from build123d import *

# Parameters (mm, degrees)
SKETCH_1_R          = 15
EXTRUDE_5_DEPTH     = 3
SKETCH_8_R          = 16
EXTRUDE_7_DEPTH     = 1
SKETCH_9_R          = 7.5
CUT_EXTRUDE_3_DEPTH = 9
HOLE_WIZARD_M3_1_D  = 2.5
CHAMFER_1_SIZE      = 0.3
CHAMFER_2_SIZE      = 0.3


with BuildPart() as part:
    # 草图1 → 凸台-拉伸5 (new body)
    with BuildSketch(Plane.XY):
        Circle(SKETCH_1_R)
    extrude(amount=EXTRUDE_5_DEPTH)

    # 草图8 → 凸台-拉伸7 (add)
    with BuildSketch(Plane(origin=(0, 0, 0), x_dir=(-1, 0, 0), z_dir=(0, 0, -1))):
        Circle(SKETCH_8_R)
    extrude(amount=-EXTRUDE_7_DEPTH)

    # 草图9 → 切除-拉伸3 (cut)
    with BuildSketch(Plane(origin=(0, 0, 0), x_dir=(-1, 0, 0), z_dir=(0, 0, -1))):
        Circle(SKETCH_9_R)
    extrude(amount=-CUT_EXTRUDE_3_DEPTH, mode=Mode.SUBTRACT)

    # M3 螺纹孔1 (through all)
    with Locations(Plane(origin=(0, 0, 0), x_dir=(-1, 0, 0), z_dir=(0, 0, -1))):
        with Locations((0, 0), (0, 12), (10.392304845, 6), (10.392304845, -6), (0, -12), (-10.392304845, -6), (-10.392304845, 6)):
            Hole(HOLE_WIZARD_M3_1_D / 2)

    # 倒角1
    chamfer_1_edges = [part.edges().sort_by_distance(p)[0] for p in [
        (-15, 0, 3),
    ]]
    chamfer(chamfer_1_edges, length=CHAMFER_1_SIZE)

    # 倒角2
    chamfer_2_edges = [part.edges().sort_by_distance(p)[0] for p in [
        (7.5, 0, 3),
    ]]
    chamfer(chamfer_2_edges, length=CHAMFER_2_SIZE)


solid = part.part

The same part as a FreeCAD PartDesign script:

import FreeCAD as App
import Part
import Sketcher

V = App.Vector


def edges_at(feature, points):
    """Names of the edges that pass closest to the given points."""
    edges = feature.Shape.Edges
    near = lambda p: min(range(len(edges)), key=lambda i: edges[i].distToShape(Part.Vertex(*p))[0])
    return sorted({f"Edge{near(p) + 1}" for p in points})

doc = App.newDocument("Part")
body = doc.addObject("PartDesign::Body", "Body")

# Sketch on XY plane
sketch1 = doc.addObject("Sketcher::SketchObject", "Sketch")
body.addObject(sketch1)
sketch1.AttachmentSupport = (doc.XY_Plane, [""])
sketch1.MapMode = "FlatFace"
sketch1.addGeometry(Part.Circle(V(0, 0, 0), V(0, 0, 1), 15), False)
sketch1.addConstraint([
    Sketcher.Constraint("Coincident", 0, 3, -1, 1),
    Sketcher.Constraint("Diameter", 0, 30.0),
])
pad1 = doc.addObject("PartDesign::Pad", "Pad")
body.addObject(pad1)
pad1.Profile = sketch1
pad1.Length = 3

# Sketch on XY plane
sketch2 = doc.addObject("Sketcher::SketchObject", "Sketch001")
body.addObject(sketch2)
sketch2.AttachmentSupport = (doc.XY_Plane, [""])
sketch2.MapMode = "FlatFace"
sketch2.addGeometry(Part.Circle(V(0, 0, 0), V(0, 0, 1), 16), False)
sketch2.addConstraint([
    Sketcher.Constraint("Coincident", 0, 3, -1, 1),
    Sketcher.Constraint("Diameter", 0, 32.0),
])
pad2 = doc.addObject("PartDesign::Pad", "Pad001")
body.addObject(pad2)
pad2.Profile = sketch2
pad2.Length = 1

# Sketch on XY plane
sketch3 = doc.addObject("Sketcher::SketchObject", "Sketch002")
body.addObject(sketch3)
sketch3.AttachmentSupport = (doc.XY_Plane, [""])
sketch3.MapMode = "FlatFace"
sketch3.addGeometry(Part.Circle(V(0, 0, 0), V(0, 0, 1), 7.5), False)
sketch3.addConstraint([
    Sketcher.Constraint("Coincident", 0, 3, -1, 1),
    Sketcher.Constraint("Diameter", 0, 15.0),
])
pocket1 = doc.addObject("PartDesign::Pocket", "Pocket")
body.addObject(pocket1)
pocket1.Profile = sketch3
pocket1.Length = 9
pocket1.Reversed = True

# Sketch on XY plane
sketch4 = doc.addObject("Sketcher::SketchObject", "Sketch003")
body.addObject(sketch4)
sketch4.AttachmentSupport = (doc.XY_Plane, [""])
sketch4.MapMode = "FlatFace"
sketch4.addGeometry([
    Part.Circle(V(0, 0, 0), V(0, 0, 1), 1.25),  # 0
    Part.Circle(V(0, 12, 0), V(0, 0, 1), 1.25),  # 1
    Part.Circle(V(-10.392305, 6, 0), V(0, 0, 1), 1.25),  # 2
    Part.Circle(V(-10.392305, -6, 0), V(0, 0, 1), 1.25),  # 3
    Part.Circle(V(0, -12, 0), V(0, 0, 1), 1.25),  # 4
    Part.Circle(V(10.392305, -6, 0), V(0, 0, 1), 1.25),  # 5
    Part.Circle(V(10.392305, 6, 0), V(0, 0, 1), 1.25),  # 6
], False)
sketch4.addConstraint([
    Sketcher.Constraint("Coincident", 0, 3, -1, 1),
    Sketcher.Constraint("Equal", 0, 1),
    Sketcher.Constraint("Equal", 1, 2),
    Sketcher.Constraint("Equal", 2, 3),
    Sketcher.Constraint("Equal", 3, 4),
    Sketcher.Constraint("Equal", 4, 5),
    Sketcher.Constraint("Equal", 5, 6),
    Sketcher.Constraint("Symmetric", 1, 3, 4, 3, -1, 1),
    Sketcher.Constraint("Symmetric", 2, 3, 5, 3, -1, 1),
    Sketcher.Constraint("Symmetric", 3, 3, 6, 3, -1, 1),
    Sketcher.Constraint("Symmetric", 3, 3, 5, 3, -2),
    Sketcher.Constraint("PointOnObject", 1, 3, -2),
    Sketcher.Constraint("Diameter", 0, 2.5),
    Sketcher.Constraint("DistanceY", -1, 1, 1, 3, 12.0),
    Sketcher.Constraint("DistanceY", -1, 1, 2, 3, 6.0),
    Sketcher.Constraint("DistanceX", 3, 3, 5, 3, 20.78461),
])
doc.recompute()
hole = doc.addObject("PartDesign::Hole", "Hole")
body.addObject(hole)
hole.Profile = sketch4
hole.ThreadType = "None"
hole.Diameter = 2.5
hole.DepthType = "ThroughAll"
hole.Reversed = True
doc.recompute()

chamfer = doc.addObject("PartDesign::Chamfer", "Chamfer")
body.addObject(chamfer)
chamfer.Base = (hole, edges_at(hole, [(-15, 0, 3)]))
chamfer.Size = 0.3
doc.recompute()

chamfer2 = doc.addObject("PartDesign::Chamfer", "Chamfer001")
body.addObject(chamfer2)
chamfer2.Base = (chamfer, edges_at(chamfer, [(7.5, 0, 3)]))
chamfer2.Size = 0.3

doc.recompute()
